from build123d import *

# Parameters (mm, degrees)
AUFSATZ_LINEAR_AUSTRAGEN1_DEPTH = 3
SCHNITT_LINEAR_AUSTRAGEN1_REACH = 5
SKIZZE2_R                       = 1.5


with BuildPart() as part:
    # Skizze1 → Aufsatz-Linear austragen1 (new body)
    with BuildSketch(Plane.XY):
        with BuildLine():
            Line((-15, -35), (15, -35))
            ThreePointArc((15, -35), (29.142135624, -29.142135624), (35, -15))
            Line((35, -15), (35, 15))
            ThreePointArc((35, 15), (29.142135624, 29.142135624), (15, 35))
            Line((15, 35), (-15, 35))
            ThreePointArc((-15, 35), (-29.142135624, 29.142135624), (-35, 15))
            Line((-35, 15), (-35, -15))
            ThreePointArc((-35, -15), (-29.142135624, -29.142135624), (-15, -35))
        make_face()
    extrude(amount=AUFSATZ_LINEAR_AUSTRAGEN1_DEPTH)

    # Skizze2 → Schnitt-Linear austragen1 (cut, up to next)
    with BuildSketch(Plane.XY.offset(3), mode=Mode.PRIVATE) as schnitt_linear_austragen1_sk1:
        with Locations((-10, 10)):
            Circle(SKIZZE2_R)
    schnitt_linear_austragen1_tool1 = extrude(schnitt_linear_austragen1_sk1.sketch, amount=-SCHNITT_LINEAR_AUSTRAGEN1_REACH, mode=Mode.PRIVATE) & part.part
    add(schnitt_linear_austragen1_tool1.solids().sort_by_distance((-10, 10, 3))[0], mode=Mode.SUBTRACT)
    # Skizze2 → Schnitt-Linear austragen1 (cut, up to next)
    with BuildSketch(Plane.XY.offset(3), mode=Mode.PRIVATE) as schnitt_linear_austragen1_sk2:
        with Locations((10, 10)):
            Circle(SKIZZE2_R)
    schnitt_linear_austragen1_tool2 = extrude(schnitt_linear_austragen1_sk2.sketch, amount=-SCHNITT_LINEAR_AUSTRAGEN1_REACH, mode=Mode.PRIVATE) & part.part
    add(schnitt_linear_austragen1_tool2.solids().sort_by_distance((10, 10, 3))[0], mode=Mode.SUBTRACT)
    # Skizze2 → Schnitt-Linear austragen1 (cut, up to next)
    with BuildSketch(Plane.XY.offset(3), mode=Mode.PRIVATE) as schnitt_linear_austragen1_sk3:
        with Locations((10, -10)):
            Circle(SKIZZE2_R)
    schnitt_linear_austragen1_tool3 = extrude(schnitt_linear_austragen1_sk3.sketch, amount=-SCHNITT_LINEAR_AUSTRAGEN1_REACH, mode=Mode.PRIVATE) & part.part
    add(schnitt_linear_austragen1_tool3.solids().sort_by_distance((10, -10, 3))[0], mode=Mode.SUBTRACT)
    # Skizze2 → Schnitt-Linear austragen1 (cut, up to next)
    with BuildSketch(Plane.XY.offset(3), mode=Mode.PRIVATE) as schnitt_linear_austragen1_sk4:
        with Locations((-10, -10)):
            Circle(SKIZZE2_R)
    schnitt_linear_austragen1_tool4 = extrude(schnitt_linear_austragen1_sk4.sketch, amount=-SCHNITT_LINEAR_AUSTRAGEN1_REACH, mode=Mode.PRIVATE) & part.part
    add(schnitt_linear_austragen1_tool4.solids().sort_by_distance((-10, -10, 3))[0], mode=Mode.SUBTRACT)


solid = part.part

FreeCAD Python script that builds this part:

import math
import FreeCAD as App
import Part
import Sketcher
from FreeCAD import Vector

doc = App.newDocument("Part")
body = doc.addObject("PartDesign::Body", "Body")

sketch1 = body.newObject("Sketcher::SketchObject", "Sketch")
sketch1.AttachmentSupport = (doc.getObject("XY_Plane"), [""])
sketch1.MapMode = "FlatFace"
sketch1.addGeometry(Part.LineSegment(Vector(-15, -35, 0), Vector(15, -35, 0)), False)
sketch1.addGeometry(Part.ArcOfCircle(Part.Circle(Vector(15, -15, 0), Vector(0, 0, 1), 20), math.radians(-90), math.radians(0)), False)
sketch1.addGeometry(Part.LineSegment(Vector(35, -15, 0), Vector(35, 15, 0)), False)
sketch1.addGeometry(Part.ArcOfCircle(Part.Circle(Vector(15, 15, 0), Vector(0, 0, 1), 20), math.radians(0), math.radians(90)), False)
sketch1.addGeometry(Part.LineSegment(Vector(15, 35, 0), Vector(-15, 35, 0)), False)
sketch1.addGeometry(Part.ArcOfCircle(Part.Circle(Vector(-15, 15, 0), Vector(0, 0, 1), 20), math.radians(90), math.radians(180)), False)
sketch1.addGeometry(Part.LineSegment(Vector(-35, 15, 0), Vector(-35, -15, 0)), False)
sketch1.addGeometry(Part.ArcOfCircle(Part.Circle(Vector(-15, -15, 0), Vector(0, 0, 1), 20), math.radians(180), math.radians(270)), False)
sketch1.addConstraint(Sketcher.Constraint("Tangent", 0, 2, 1, 1))
sketch1.addConstraint(Sketcher.Constraint("Tangent", 1, 2, 2, 1))
sketch1.addConstraint(Sketcher.Constraint("Tangent", 2, 2, 3, 1))
sketch1.addConstraint(Sketcher.Constraint("Tangent", 3, 2, 4, 1))
sketch1.addConstraint(Sketcher.Constraint("Tangent", 4, 2, 5, 1))
sketch1.addConstraint(Sketcher.Constraint("Tangent", 5, 2, 6, 1))
sketch1.addConstraint(Sketcher.Constraint("Tangent", 6, 2, 7, 1))
sketch1.addConstraint(Sketcher.Constraint("Tangent", 7, 2, 0, 1))
sketch1.addConstraint(Sketcher.Constraint("Horizontal", 0))
sketch1.addConstraint(Sketcher.Constraint("Vertical", 2))
sketch1.addConstraint(Sketcher.Constraint("Horizontal", 4))
sketch1.addConstraint(Sketcher.Constraint("Vertical", 6))
sketch1.addConstraint(Sketcher.Constraint("Equal", 1, 3))
sketch1.addConstraint(Sketcher.Constraint("Equal", 3, 5))
sketch1.addConstraint(Sketcher.Constraint("Equal", 5, 7))
sketch1.addConstraint(Sketcher.Constraint("Symmetric", 1, 3, 5, 3, -1, 1))
sketch1.addConstraint(Sketcher.Constraint("Equal", 4, 2))
sketch1.addConstraint(Sketcher.Constraint("Radius", 1, 20.0))
sketch1.addConstraint(Sketcher.Constraint("DistanceX", 0, 1, 0, 2, 30.0))
pad1 = body.newObject("PartDesign::Pad", "Pad")
pad1.Profile = sketch1
pad1.Length = 3

sketch2 = body.newObject("Sketcher::SketchObject", "Sketch001")
sketch2.AttachmentSupport = (doc.getObject("XY_Plane"), [""])
sketch2.MapMode = "FlatFace"
sketch2.AttachmentOffset = App.Placement(Vector(0, 0, 3), App.Rotation())
sketch2.addGeometry(Part.Circle(Vector(-10, 10, 0), Vector(0, 0, 1), 1.5), False)
sketch2.addConstraint(Sketcher.Constraint("Diameter", 0, 3.0))
sketch2.addConstraint(Sketcher.Constraint("DistanceX", 0, 3, -1, 1, 10.0))
sketch2.addConstraint(Sketcher.Constraint("DistanceY", -1, 1, 0, 3, 10.0))
pocket1 = body.newObject("PartDesign::Pocket", "Pocket")
pocket1.Profile = sketch2
pocket1.Type = "UpToFirst"

sketch3 = body.newObject("Sketcher::SketchObject", "Sketch002")
sketch3.AttachmentSupport = (doc.getObject("XY_Plane"), [""])
sketch3.MapMode = "FlatFace"
sketch3.AttachmentOffset = App.Placement(Vector(0, 0, 3), App.Rotation())
sketch3.addGeometry(Part.Circle(Vector(10, 10, 0), Vector(0, 0, 1), 1.5), False)
sketch3.addConstraint(Sketcher.Constraint("Diameter", 0, 3.0))
sketch3.addConstraint(Sketcher.Constraint("DistanceX", -1, 1, 0, 3, 10.0))
sketch3.addConstraint(Sketcher.Constraint("DistanceY", -1, 1, 0, 3, 10.0))
pocket2 = body.newObject("PartDesign::Pocket", "Pocket001")
pocket2.Profile = sketch3
pocket2.Type = "UpToFirst"

sketch4 = body.newObject("Sketcher::SketchObject", "Sketch003")
sketch4.AttachmentSupport = (doc.getObject("XY_Plane"), [""])
sketch4.MapMode = "FlatFace"
sketch4.AttachmentOffset = App.Placement(Vector(0, 0, 3), App.Rotation())
sketch4.addGeometry(Part.Circle(Vector(10, -10, 0), Vector(0, 0, 1), 1.5), False)
sketch4.addConstraint(Sketcher.Constraint("Diameter", 0, 3.0))
sketch4.addConstraint(Sketcher.Constraint("DistanceX", -1, 1, 0, 3, 10.0))
sketch4.addConstraint(Sketcher.Constraint("DistanceY", 0, 3, -1, 1, 10.0))
pocket3 = body.newObject("PartDesign::Pocket", "Pocket002")
pocket3.Profile = sketch4
pocket3.Type = "UpToFirst"

sketch5 = body.newObject("Sketcher::SketchObject", "Sketch004")
sketch5.AttachmentSupport = (doc.getObject("XY_Plane"), [""])
sketch5.MapMode = "FlatFace"
sketch5.AttachmentOffset = App.Placement(Vector(0, 0, 3), App.Rotation())
sketch5.addGeometry(Part.Circle(Vector(-10, -10, 0), Vector(0, 0, 1), 1.5), False)
sketch5.addConstraint(Sketcher.Constraint("Diameter", 0, 3.0))
sketch5.addConstraint(Sketcher.Constraint("DistanceX", 0, 3, -1, 1, 10.0))
sketch5.addConstraint(Sketcher.Constraint("DistanceY", 0, 3, -1, 1, 10.0))
pocket4 = body.newObject("PartDesign::Pocket", "Pocket003")
pocket4.Profile = sketch5
pocket4.Type = "UpToFirst"

doc.recompute()
